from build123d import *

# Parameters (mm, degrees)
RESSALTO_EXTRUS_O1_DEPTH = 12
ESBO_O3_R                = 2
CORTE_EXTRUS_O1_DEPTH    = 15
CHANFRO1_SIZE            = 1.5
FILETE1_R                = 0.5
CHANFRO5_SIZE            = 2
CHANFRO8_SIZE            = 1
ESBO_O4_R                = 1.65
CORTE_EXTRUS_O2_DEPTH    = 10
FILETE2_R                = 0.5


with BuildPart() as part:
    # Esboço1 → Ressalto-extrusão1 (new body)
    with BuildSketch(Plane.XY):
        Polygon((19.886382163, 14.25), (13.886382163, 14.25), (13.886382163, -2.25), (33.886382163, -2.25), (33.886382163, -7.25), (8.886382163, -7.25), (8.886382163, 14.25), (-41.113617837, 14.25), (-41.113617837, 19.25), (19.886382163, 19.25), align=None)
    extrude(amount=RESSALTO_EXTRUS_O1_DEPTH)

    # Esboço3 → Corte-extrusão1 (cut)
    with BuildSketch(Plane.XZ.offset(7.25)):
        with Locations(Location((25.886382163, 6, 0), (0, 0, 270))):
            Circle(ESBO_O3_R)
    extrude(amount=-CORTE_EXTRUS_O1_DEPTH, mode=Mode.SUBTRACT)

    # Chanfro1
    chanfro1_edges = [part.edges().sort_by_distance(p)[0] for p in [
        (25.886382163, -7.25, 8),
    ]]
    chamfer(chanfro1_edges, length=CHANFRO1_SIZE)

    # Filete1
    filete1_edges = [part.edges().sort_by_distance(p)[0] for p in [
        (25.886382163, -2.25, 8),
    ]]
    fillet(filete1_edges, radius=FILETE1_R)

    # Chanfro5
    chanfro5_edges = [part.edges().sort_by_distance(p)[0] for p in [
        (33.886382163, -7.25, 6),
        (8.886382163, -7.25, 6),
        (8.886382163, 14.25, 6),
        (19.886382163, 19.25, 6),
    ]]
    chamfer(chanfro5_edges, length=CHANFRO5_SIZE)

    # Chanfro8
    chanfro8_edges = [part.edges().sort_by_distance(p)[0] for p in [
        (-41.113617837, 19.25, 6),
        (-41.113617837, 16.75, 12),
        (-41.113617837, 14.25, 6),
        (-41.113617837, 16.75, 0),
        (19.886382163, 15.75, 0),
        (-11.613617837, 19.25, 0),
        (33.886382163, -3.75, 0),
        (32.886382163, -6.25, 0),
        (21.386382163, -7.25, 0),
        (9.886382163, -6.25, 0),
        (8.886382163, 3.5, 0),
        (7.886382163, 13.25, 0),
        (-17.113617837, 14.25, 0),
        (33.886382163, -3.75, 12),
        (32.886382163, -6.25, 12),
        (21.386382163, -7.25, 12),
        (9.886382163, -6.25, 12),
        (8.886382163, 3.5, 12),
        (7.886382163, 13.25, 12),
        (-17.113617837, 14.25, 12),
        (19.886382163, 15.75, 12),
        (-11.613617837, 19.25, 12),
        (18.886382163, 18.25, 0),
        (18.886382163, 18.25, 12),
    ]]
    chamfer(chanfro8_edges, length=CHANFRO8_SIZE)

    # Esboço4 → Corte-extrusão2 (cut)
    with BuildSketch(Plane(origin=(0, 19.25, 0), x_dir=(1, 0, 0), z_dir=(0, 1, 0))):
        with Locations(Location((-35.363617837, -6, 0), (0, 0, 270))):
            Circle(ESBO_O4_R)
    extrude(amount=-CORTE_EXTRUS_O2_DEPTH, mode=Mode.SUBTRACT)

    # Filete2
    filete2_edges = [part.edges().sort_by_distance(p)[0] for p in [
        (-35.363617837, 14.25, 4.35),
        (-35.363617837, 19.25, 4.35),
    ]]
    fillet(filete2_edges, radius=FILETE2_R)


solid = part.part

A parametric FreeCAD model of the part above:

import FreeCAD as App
import Part
import Sketcher


def edges_at(feature, points):
    """Names of the edges that pass closest to the given points."""
    edges = feature.Shape.Edges
    near = lambda p: min(range(len(edges)), key=lambda i: edges[i].distToShape(Part.Vertex(*p))[0])
    return sorted({f"Edge{near(p) + 1}" for p in points})


def add_polygon(sketch, points):
    """Adds a closed chain of lines whose ends are joined by coincident constraints."""
    first, n = sketch.GeometryCount, len(points)
    for a, b in zip(points, points[1:] + points[:1]):
        sketch.addGeometry(Part.LineSegment(App.Vector(*a, 0), App.Vector(*b, 0)), False)
    for i in range(n):
        sketch.addConstraint(Sketcher.Constraint("Coincident", first + i, 2, first + (i + 1) % n, 1))

doc = App.newDocument("Part")
body = doc.addObject("PartDesign::Body", "Body")

# Sketch on XY plane
sketch1 = body.newObject("Sketcher::SketchObject", "Sketch")
sketch1.AttachmentSupport = (doc.getObject("XY_Plane"), [""])
sketch1.MapMode = "FlatFace"
add_polygon(sketch1, [(14, 14), (20, 14), (20, 19), (-41, 19), (-41, 14), (9, 14), (9, -7), (34, -7), (34, -2), (14, -2)])  # lines 0-9
sketch1.addConstraint([
    Sketcher.Constraint("Horizontal", 0),
    Sketcher.Constraint("Vertical", 1),
    Sketcher.Constraint("Horizontal", 2),
    Sketcher.Constraint("Vertical", 3),
    Sketcher.Constraint("Horizontal", 4),
    Sketcher.Constraint("Vertical", 5),
    Sketcher.Constraint("Horizontal", 6),
    Sketcher.Constraint("Vertical", 7),
    Sketcher.Constraint("Horizontal", 8),
    Sketcher.Constraint("Vertical", 9),
    Sketcher.Constraint("Horizontal", 0, 2, 3, 2),
    Sketcher.Constraint("Equal", 3, 7),
    Sketcher.Constraint("DistanceX", 0, 1, 0, 2, 6.0),
    Sketcher.Constraint("DistanceX", 2, 2, 2, 1, 61.0),
    Sketcher.Constraint("DistanceX", 4, 1, 4, 2, 50.0),
    Sketcher.Constraint("DistanceX", 6, 1, 6, 2, 25.0),
    Sketcher.Constraint("DistanceY", 1, 1, 1, 2, 5.0),
    Sketcher.Constraint("DistanceY", 5, 2, 5, 1, 21.5),
    Sketcher.Constraint("DistanceY", -1, 1, 0, 2, 14.25),
    Sketcher.Constraint("DistanceX", -1, 1, 0, 2, 19.886382),
])
pad1 = body.newObject("PartDesign::Pad", "Pad")
pad1.Profile = sketch1
pad1.Length = 12

# Sketch on XZ plane
sketch2 = body.newObject("Sketcher::SketchObject", "Sketch001")
sketch2.AttachmentSupport = (doc.getObject("XZ_Plane"), [""])
sketch2.MapMode = "FlatFace"
sketch2.AttachmentOffset = App.Placement(App.Vector(0, 0, 7.25), App.Rotation())
sketch2.addGeometry(Part.Circle(App.Vector(25.9, 6, 0), App.Vector(0, 0, 1), 2), False)
sketch2.addConstraint([
    Sketcher.Constraint("Diameter", 0, 4.0),
    Sketcher.Constraint("DistanceY", -1, 1, 0, 3, 6.0),
    Sketcher.Constraint("DistanceX", -1, 1, 0, 3, 25.886382),
])
pocket1 = body.newObject("PartDesign::Pocket", "Pocket")
pocket1.Profile = sketch2
pocket1.Length = 15
doc.recompute()

chamfer = body.newObject("PartDesign::Chamfer", "Chamfer")
chamfer.Base = (pocket1, edges_at(pocket1, [(25.886, -7.25, 8)]))
chamfer.Size = 1.5
doc.recompute()

fillet = body.newObject("PartDesign::Fillet", "Fillet")
fillet.Base = (chamfer, edges_at(chamfer, [(25.886, -2.25, 8)]))
fillet.Radius = 0.5
doc.recompute()

chamfer2 = body.newObject("PartDesign::Chamfer", "Chamfer001")
chamfer2.Base = (fillet, edges_at(fillet, [
    (33.886, -7.25, 6),
    (8.886, -7.25, 6),
    (8.886, 14.25, 6),
    (19.886, 19.25, 6),
]))
chamfer2.Size = 2
doc.recompute()

chamfer3 = body.newObject("PartDesign::Chamfer", "Chamfer002")
chamfer3.Base = (chamfer2, edges_at(chamfer2, [
    (-41.114, 19.25, 6),
    (-41.114, 16.75, 12),
    (-41.114, 14.25, 6),
    (-41.114, 16.75, 0),
    (19.886, 15.75, 0),
    (-11.614, 19.25, 0),
    (33.886, -3.75, 0),
    (32.886, -6.25, 0),
    (21.386, -7.25, 0),
    (9.886, -6.25, 0),
    (8.886, 3.5, 0),
    (7.886, 13.25, 0),
    (-17.114, 14.25, 0),
    (33.886, -3.75, 12),
    (32.886, -6.25, 12),
    (21.386, -7.25, 12),
    (9.886, -6.25, 12),
    (8.886, 3.5, 12),
    (7.886, 13.25, 12),
    (-17.114, 14.25, 12),
    (19.886, 15.75, 12),
    (-11.614, 19.25, 12),
    (18.886, 18.25, 0),
    (18.886, 18.25, 12),
]))
chamfer3.Size = 1

# Sketch on XZ plane
sketch3 = body.newObject("Sketcher::SketchObject", "Sketch002")
sketch3.AttachmentSupport = (doc.getObject("XZ_Plane"), [""])
sketch3.MapMode = "FlatFace"
sketch3.AttachmentOffset = App.Placement(App.Vector(0, 0, -19.25), App.Rotation())
sketch3.addGeometry(Part.Circle(App.Vector(-35.4, 6, 0), App.Vector(0, 0, 1), 1.6), False)
sketch3.addConstraint([
    Sketcher.Constraint("Diameter", 0, 3.3),
    Sketcher.Constraint("DistanceY", -1, 1, 0, 3, 6.0),
    Sketcher.Constraint("DistanceX", 0, 3, -1, 1, 35.363618),
])
pocket2 = body.newObject("PartDesign::Pocket", "Pocket001")
pocket2.Profile = sketch3
pocket2.Length = 10
pocket2.Reversed = True
doc.recompute()

fillet2 = body.newObject("PartDesign::Fillet", "Fillet001")
fillet2.Base = (pocket2, edges_at(pocket2, [(-35.364, 14.25, 4.35), (-35.364, 19.25, 4.35)]))
fillet2.Radius = 0.5

doc.recompute()
